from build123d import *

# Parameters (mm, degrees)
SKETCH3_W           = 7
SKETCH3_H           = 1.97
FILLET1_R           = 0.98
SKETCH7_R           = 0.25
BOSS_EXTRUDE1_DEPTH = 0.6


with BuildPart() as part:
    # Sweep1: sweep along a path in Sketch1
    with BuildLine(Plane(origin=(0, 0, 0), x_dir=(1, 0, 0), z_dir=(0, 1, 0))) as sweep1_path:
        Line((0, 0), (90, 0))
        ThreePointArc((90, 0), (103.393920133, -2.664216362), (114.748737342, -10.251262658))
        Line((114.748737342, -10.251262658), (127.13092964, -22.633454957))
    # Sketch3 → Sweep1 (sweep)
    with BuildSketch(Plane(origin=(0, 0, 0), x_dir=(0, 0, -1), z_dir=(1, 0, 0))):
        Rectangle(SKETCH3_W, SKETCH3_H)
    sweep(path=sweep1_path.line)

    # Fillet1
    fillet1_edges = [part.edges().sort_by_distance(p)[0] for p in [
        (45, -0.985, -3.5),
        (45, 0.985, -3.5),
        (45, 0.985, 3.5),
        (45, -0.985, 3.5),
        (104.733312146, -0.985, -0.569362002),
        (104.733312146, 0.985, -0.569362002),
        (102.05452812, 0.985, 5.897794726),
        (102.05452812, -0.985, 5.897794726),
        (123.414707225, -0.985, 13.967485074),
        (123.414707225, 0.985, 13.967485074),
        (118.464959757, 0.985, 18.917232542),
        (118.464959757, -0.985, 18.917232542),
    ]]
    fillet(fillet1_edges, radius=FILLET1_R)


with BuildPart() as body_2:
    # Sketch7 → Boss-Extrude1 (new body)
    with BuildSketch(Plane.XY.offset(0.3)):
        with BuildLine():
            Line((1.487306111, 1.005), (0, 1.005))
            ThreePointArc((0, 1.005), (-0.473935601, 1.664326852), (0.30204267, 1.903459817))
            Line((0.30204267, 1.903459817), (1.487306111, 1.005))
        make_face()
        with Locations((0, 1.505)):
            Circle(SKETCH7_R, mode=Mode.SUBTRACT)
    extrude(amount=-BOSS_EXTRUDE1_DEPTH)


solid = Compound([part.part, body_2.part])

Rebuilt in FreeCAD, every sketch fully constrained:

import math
import FreeCAD as App
import Part
import Sketcher
from FreeCAD import Vector
Q = App.Units.Quantity


def edges_at(feature, points):
    """Names of the edges that pass closest to the given points."""
    edges = feature.Shape.Edges
    near = lambda p: min(range(len(edges)), key=lambda i: edges[i].distToShape(Part.Vertex(*p))[0])
    return sorted({f"Edge{near(p) + 1}" for p in points})

doc = App.newDocument("Part")
params = doc.addObject("Spreadsheet::Sheet", "Params")
for row, (alias, value) in enumerate([
    ("sketch1_height", "7 mm"),
    ("sketch1_width", "1.97 mm"),
    ("sketch2_radius", "35 mm"),
    ("sketch2_width", "90 mm"),
    ("fillet_radius", "0.98 mm"),
    ("sketch3_diameter", "0.5 mm"),
    ("sketch3_radius", "0.5 mm"),
    ("pad1_length", "0.6 mm"),
], start=1):
    params.set(f"A{row}", alias)
    params.set(f"B{row}", "=" + value)
    params.setAlias(f"B{row}", alias)

body = doc.addObject("PartDesign::Body", "Body")

# Sketch on YZ plane
sketch1 = body.newObject("Sketcher::SketchObject", "Sketch")
sketch1.AttachmentSupport = (doc.getObject("YZ_Plane"), [""])
sketch1.MapMode = "FlatFace"
sketch1.addGeometry(Part.LineSegment(Vector(1, 3.5, 0), Vector(-1, 3.5, 0)), False)
sketch1.addGeometry(Part.LineSegment(Vector(-1, 3.5, 0), Vector(-1, -3.5, 0)), False)
sketch1.addGeometry(Part.LineSegment(Vector(-1, -3.5, 0), Vector(1, -3.5, 0)), False)
sketch1.addGeometry(Part.LineSegment(Vector(1, -3.5, 0), Vector(1, 3.5, 0)), False)
sketch1.addConstraint(Sketcher.Constraint("Coincident", 0, 2, 1, 1))
sketch1.addConstraint(Sketcher.Constraint("Coincident", 1, 2, 2, 1))
sketch1.addConstraint(Sketcher.Constraint("Coincident", 2, 2, 3, 1))
sketch1.addConstraint(Sketcher.Constraint("Coincident", 3, 2, 0, 1))
sketch1.addConstraint(Sketcher.Constraint("Horizontal", 0))
sketch1.addConstraint(Sketcher.Constraint("Vertical", 1))
sketch1.addConstraint(Sketcher.Constraint("Horizontal", 2))
sketch1.addConstraint(Sketcher.Constraint("Vertical", 3))
sketch1.addConstraint(Sketcher.Constraint("Symmetric", 0, 2, 2, 2, -1, 1))
sketch1.addConstraint(Sketcher.Constraint("DistanceY", 1, 2, 1, 1, Q("7 mm")))
sketch1.addConstraint(Sketcher.Constraint("DistanceX", 0, 2, 0, 1, Q("1.97 mm")))
sketch1.setExpression("Constraints[9]", "Params.sketch1_height")
sketch1.setExpression("Constraints[10]", "Params.sketch1_width")

# Sketch on XZ plane
sketch2 = body.newObject("Sketcher::SketchObject", "Sketch001")
sketch2.AttachmentSupport = (doc.getObject("XZ_Plane"), [""])
sketch2.MapMode = "FlatFace"
sketch2.addGeometry(Part.LineSegment(Vector(0, 0, 0), Vector(90, 0, 0)), False)
sketch2.addGeometry(Part.ArcOfCircle(Part.Circle(Vector(90, 35, 0), Vector(0, 0, 1), 35), math.radians(-90), math.radians(-45)), False)
sketch2.addGeometry(Part.LineSegment(Vector(115, 10, 0), Vector(127, 23, 0)), False)
sketch2.addConstraint(Sketcher.Constraint("Tangent", 0, 2, 1, 1))
sketch2.addConstraint(Sketcher.Constraint("Tangent", 1, 2, 2, 1))
sketch2.addConstraint(Sketcher.Constraint("Horizontal", 0))
sketch2.addConstraint(Sketcher.Constraint("Coincident", 0, 1, -1, 1))
sketch2.addConstraint(Sketcher.Constraint("Radius", 1, Q("35 mm")))
sketch2.addConstraint(Sketcher.Constraint("DistanceX", 0, 1, 0, 2, Q("90 mm")))
sketch2.addConstraint(Sketcher.Constraint("Angle", 2, Q("45 deg")))
sketch2.addConstraint(Sketcher.Constraint("DistanceX", -1, 1, 2, 2, Q("127.13093 mm")))
sketch2.setExpression("Constraints[4]", "Params.sketch2_radius")
sketch2.setExpression("Constraints[5]", "Params.sketch2_width")
doc.recompute()

additivepipe = body.newObject("PartDesign::AdditivePipe", "AdditivePipe")
additivepipe.Profile = sketch1
additivepipe.Spine = (sketch2, ["Edge1", "Edge2", "Edge3"])
doc.recompute()

fillet = body.newObject("PartDesign::Fillet", "Fillet")
fillet.Base = (additivepipe, edges_at(additivepipe, [
    (45, -0.985, -3.5),
    (45, 0.985, -3.5),
    (45, 0.985, 3.5),
    (45, -0.985, 3.5),
    (104.733, -0.985, -0.569),
    (104.733, 0.985, -0.569),
    (102.055, 0.985, 5.898),
    (102.055, -0.985, 5.898),
    (123.415, -0.985, 13.967),
    (123.415, 0.985, 13.967),
    (118.465, 0.985, 18.917),
    (118.465, -0.985, 18.917),
]))
fillet.setExpression("Radius", "Params.fillet_radius")
body2 = doc.addObject("PartDesign::Body", "Body001")

# Sketch on XY plane
sketch3 = body2.newObject("Sketcher::SketchObject", "Sketch002")
sketch3.AttachmentSupport = (doc.getObject("XY_Plane001"), [""])
sketch3.MapMode = "FlatFace"
sketch3.AttachmentOffset = App.Placement(Vector(0, 0, 0.3), App.Rotation())
sketch3.addGeometry(Part.LineSegment(Vector(0, 1, 0), Vector(1.49, 1, 0)), False)
sketch3.addGeometry(Part.LineSegment(Vector(1.49, 1, 0), Vector(0.3, 1.9, 0)), False)
sketch3.addGeometry(Part.ArcOfCircle(Part.Circle(Vector(0, 1.5, 0), Vector(0, 0, 1), 0.5), math.radians(53), math.radians(270)), False)
sketch3.addGeometry(Part.Circle(Vector(0, 1.5, 0), Vector(0, 0, 1), 0.25), False)
sketch3.addConstraint(Sketcher.Constraint("Coincident", 0, 2, 1, 1))
sketch3.addConstraint(Sketcher.Constraint("Tangent", 1, 2, 2, 1))
sketch3.addConstraint(Sketcher.Constraint("Tangent", 2, 2, 0, 1))
sketch3.addConstraint(Sketcher.Constraint("Horizontal", 0))
sketch3.addConstraint(Sketcher.Constraint("Coincident", 3, 3, 2, 3))
sketch3.addConstraint(Sketcher.Constraint("PointOnObject", 2, 3, -2))
sketch3.addConstraint(Sketcher.Constraint("Diameter", 3, Q("0.5 mm")))
sketch3.addConstraint(Sketcher.Constraint("Radius", 2, Q("0.5 mm")))
sketch3.addConstraint(Sketcher.Constraint("DistanceY", -1, 1, 2, 3, Q("1.505 mm")))
sketch3.addConstraint(Sketcher.Constraint("DistanceX", 0, 1, 0, 2, Q("1.487306 mm")))
sketch3.setExpression("Constraints[6]", "Params.sketch3_diameter")
sketch3.setExpression("Constraints[7]", "Params.sketch3_radius")
pad1 = body2.newObject("PartDesign::Pad", "Pad")
pad1.Profile = sketch3
pad1.setExpression("Length", "Params.pad1_length")
pad1.Reversed = True

doc.recompute()
